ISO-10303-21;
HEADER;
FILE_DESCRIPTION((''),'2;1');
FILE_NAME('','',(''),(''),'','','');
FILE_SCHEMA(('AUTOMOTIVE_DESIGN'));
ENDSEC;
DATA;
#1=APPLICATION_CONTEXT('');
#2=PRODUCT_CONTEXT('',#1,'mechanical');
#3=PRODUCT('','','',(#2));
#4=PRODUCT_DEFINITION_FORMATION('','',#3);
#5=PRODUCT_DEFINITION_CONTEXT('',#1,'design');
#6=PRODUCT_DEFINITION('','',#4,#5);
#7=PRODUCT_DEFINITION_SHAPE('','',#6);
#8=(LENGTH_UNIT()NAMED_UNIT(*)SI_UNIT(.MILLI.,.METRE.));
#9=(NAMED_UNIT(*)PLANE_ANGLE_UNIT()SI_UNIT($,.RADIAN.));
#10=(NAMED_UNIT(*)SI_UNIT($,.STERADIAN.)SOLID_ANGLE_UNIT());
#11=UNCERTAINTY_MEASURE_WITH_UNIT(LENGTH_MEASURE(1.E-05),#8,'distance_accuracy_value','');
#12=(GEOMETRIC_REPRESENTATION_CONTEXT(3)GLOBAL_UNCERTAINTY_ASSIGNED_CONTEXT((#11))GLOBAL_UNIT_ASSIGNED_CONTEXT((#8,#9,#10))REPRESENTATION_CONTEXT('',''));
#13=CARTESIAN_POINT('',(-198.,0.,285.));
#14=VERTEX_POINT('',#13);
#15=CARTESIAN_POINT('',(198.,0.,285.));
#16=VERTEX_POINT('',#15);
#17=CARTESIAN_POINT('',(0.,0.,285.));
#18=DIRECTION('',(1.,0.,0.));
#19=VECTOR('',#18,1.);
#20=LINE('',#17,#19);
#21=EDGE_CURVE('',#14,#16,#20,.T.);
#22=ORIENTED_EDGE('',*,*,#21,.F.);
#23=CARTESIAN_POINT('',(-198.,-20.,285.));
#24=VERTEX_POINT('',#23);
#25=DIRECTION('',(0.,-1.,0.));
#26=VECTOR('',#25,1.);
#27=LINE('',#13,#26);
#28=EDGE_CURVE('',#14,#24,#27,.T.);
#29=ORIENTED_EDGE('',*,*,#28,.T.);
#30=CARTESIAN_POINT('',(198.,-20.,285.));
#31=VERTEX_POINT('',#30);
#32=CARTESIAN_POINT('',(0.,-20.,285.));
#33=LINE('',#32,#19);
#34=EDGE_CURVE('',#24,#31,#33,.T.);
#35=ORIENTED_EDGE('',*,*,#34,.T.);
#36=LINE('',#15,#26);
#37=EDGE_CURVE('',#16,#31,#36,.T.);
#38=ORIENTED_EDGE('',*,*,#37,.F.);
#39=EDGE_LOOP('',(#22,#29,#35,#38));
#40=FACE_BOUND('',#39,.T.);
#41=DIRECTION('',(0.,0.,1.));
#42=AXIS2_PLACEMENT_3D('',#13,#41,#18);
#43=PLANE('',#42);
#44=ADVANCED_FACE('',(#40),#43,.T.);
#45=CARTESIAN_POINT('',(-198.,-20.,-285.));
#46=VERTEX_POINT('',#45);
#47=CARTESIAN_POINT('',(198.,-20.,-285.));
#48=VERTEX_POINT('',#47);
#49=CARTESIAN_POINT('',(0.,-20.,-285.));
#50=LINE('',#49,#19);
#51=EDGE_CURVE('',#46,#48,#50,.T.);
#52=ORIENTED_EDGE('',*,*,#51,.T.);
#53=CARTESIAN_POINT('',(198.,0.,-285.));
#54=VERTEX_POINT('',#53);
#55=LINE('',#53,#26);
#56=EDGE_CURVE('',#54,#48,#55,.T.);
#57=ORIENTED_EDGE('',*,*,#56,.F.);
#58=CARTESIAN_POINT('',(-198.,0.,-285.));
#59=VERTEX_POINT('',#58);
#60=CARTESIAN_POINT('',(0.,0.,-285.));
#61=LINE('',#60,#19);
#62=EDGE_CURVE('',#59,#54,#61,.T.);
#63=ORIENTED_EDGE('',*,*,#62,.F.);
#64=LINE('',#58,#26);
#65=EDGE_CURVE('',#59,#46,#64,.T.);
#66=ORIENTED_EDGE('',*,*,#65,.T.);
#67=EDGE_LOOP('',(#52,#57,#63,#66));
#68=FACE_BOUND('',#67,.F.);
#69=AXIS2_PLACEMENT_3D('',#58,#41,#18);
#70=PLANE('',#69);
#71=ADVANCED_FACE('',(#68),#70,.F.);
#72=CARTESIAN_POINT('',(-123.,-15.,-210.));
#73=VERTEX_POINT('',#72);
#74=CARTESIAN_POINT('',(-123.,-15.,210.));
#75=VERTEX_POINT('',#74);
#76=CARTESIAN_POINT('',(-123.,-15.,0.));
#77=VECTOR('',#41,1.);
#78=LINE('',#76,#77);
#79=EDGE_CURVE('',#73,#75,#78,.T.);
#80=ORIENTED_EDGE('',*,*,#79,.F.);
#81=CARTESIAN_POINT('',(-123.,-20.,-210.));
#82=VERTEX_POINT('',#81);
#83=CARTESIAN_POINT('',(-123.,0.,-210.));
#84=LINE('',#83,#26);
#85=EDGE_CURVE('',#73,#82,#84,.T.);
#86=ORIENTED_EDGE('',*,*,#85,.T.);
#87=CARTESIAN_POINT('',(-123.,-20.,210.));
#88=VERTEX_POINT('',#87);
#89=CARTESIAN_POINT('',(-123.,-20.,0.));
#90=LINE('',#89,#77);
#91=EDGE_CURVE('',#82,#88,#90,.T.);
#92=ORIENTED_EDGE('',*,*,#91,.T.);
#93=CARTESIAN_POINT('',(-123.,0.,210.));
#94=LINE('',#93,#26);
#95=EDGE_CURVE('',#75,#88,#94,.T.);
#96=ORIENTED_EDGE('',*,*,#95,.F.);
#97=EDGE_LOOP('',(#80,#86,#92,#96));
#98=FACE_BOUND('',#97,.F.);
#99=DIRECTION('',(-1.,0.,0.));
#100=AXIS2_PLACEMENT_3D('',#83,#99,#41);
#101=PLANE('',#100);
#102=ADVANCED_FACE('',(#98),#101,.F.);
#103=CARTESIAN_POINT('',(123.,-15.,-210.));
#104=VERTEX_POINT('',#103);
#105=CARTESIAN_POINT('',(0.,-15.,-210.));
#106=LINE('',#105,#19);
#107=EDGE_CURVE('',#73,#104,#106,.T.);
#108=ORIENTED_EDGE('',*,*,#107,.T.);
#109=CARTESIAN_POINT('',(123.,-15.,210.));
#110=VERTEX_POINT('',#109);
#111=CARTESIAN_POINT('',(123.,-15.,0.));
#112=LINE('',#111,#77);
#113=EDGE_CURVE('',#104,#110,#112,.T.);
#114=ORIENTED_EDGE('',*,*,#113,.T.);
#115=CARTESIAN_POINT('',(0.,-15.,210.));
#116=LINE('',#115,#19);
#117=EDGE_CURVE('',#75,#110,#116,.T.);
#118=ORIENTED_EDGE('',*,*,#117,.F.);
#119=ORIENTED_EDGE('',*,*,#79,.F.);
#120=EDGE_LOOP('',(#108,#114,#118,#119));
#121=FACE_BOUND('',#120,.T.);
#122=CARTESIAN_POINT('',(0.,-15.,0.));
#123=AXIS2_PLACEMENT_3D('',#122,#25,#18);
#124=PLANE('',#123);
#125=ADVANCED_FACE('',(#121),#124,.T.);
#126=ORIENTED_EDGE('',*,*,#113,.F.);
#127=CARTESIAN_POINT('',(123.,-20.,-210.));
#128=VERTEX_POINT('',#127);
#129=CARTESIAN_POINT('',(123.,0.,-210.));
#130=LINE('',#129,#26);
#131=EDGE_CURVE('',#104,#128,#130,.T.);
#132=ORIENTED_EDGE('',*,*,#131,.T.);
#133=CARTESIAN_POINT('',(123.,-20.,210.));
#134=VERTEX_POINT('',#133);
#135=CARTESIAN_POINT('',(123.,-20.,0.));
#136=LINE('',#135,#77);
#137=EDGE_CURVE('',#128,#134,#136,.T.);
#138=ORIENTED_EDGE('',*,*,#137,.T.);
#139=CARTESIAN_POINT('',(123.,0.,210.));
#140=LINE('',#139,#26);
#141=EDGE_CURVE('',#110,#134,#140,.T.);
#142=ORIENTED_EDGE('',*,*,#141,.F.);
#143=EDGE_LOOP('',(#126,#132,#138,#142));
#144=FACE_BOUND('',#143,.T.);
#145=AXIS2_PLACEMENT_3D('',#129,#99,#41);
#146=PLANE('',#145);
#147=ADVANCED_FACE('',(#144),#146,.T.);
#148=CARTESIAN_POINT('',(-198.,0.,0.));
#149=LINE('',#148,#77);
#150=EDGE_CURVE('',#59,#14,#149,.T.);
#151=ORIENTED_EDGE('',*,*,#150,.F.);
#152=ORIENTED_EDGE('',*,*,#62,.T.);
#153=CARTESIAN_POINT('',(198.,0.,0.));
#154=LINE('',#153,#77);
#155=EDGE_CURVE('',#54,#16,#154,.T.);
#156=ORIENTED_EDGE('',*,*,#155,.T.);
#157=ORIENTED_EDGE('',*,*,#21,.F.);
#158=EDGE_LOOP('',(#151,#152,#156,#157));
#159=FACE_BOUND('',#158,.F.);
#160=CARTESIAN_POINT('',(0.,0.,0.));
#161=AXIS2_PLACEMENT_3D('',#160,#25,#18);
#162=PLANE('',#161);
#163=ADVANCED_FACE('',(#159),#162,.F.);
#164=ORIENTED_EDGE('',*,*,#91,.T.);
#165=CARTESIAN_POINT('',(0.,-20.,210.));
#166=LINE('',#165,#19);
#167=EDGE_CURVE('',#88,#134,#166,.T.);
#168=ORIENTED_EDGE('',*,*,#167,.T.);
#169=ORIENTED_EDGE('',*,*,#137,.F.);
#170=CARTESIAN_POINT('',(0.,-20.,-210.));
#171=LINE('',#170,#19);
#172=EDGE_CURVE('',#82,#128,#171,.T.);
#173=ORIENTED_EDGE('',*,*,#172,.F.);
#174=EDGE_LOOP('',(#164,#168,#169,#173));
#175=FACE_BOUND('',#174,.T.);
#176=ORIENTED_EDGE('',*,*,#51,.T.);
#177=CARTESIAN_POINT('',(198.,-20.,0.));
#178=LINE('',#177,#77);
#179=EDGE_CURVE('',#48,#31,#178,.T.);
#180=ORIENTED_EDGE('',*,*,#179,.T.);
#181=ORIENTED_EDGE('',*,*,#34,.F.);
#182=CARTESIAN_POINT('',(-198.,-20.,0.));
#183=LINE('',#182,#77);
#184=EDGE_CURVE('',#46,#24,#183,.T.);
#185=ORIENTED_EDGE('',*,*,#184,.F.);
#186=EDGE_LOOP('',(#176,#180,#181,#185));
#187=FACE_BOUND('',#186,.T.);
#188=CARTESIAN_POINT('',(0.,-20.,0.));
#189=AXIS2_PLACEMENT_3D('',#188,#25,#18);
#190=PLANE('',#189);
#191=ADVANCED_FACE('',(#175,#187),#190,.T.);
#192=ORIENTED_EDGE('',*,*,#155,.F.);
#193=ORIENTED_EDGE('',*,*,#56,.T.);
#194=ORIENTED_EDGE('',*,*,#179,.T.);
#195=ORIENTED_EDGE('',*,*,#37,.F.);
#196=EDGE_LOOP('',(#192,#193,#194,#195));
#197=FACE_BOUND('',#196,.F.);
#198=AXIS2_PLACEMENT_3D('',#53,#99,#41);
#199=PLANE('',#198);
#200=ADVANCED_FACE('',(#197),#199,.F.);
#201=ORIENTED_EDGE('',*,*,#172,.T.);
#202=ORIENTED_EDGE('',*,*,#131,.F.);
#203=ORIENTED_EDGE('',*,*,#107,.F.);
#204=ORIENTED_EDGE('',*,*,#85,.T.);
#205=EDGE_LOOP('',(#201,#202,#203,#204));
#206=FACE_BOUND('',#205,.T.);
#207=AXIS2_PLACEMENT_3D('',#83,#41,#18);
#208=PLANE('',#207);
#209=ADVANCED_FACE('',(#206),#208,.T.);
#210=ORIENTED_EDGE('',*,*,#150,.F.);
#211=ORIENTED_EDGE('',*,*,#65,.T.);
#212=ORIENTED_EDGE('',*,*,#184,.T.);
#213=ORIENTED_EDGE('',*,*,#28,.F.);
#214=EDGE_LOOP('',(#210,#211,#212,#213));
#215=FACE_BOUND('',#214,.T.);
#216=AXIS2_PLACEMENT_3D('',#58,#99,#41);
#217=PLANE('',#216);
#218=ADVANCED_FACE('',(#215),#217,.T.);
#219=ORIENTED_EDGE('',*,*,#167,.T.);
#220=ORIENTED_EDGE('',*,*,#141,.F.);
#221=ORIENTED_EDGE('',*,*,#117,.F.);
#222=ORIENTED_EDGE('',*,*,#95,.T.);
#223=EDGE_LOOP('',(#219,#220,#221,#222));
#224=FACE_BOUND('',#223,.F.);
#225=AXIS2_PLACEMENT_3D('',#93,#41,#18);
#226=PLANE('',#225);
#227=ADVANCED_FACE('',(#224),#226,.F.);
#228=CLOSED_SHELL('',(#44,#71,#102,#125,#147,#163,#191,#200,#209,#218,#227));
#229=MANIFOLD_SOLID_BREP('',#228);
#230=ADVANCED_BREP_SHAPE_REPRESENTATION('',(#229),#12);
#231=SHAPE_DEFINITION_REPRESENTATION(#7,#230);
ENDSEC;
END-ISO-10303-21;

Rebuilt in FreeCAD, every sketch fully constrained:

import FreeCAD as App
import Part
import Sketcher
from FreeCAD import Vector

doc = App.newDocument("Part")
body = doc.addObject("PartDesign::Body", "Body")

# Sketch on XZ plane
sketch1 = doc.addObject("Sketcher::SketchObject", "Sketch")
body.addObject(sketch1)
sketch1.AttachmentSupport = (doc.XZ_Plane, [""])
sketch1.MapMode = "FlatFace"
sketch1.addGeometry([
    Part.LineSegment(Vector(-123, 210, 0), Vector(-123, -210, 0)),
    Part.LineSegment(Vector(-123, -210, 0), Vector(123, -210, 0)),
    Part.LineSegment(Vector(123, -210, 0), Vector(123, 210, 0)),
    Part.LineSegment(Vector(123, 210, 0), Vector(-123, 210, 0)),
], False)
sketch1.addConstraint([
    Sketcher.Constraint("Coincident", 0, 2, 1, 1),
    Sketcher.Constraint("Coincident", 1, 2, 2, 1),
    Sketcher.Constraint("Coincident", 2, 2, 3, 1),
    Sketcher.Constraint("Coincident", 3, 2, 0, 1),
    Sketcher.Constraint("Vertical", 0),
    Sketcher.Constraint("Horizontal", 1),
    Sketcher.Constraint("Vertical", 2),
    Sketcher.Constraint("Horizontal", 3),
    Sketcher.Constraint("Symmetric", 0, 2, 2, 2, -1, 1),
    Sketcher.Constraint("DistanceX", 1, 1, 1, 2, 246.0),
    Sketcher.Constraint("DistanceY", 0, 2, 0, 1, 420.0),
])
pad1 = doc.addObject("PartDesign::Pad", "Pad")
body.addObject(pad1)
pad1.Profile = sketch1
pad1.Length = 15

# Sketch on XZ plane
sketch2 = doc.addObject("Sketcher::SketchObject", "Sketch001")
body.addObject(sketch2)
sketch2.AttachmentSupport = (doc.XZ_Plane, [""])
sketch2.MapMode = "FlatFace"
sketch2.addGeometry([
    Part.LineSegment(Vector(-198, 285, 0), Vector(-198, -285, 0)),  # 0
    Part.LineSegment(Vector(-198, -285, 0), Vector(198, -285, 0)),  # 1
    Part.LineSegment(Vector(198, -285, 0), Vector(198, 285, 0)),  # 2
    Part.LineSegment(Vector(198, 285, 0), Vector(-198, 285, 0)),  # 3
    Part.LineSegment(Vector(123, -210, 0), Vector(-123, -210, 0)),  # 4
    Part.LineSegment(Vector(-123, -210, 0), Vector(-123, 210, 0)),  # 5
    Part.LineSegment(Vector(-123, 210, 0), Vector(123, 210, 0)),  # 6
    Part.LineSegment(Vector(123, 210, 0), Vector(123, -210, 0)),  # 7
], False)
sketch2.addConstraint([
    Sketcher.Constraint("Coincident", 0, 2, 1, 1),
    Sketcher.Constraint("Coincident", 1, 2, 2, 1),
    Sketcher.Constraint("Coincident", 2, 2, 3, 1),
    Sketcher.Constraint("Coincident", 3, 2, 0, 1),
    Sketcher.Constraint("Coincident", 4, 2, 5, 1),
    Sketcher.Constraint("Coincident", 5, 2, 6, 1),
    Sketcher.Constraint("Coincident", 6, 2, 7, 1),
    Sketcher.Constraint("Coincident", 7, 2, 4, 1),
    Sketcher.Constraint("Vertical", 0),
    Sketcher.Constraint("Horizontal", 1),
    Sketcher.Constraint("Vertical", 2),
    Sketcher.Constraint("Horizontal", 3),
    Sketcher.Constraint("Horizontal", 4),
    Sketcher.Constraint("Vertical", 5),
    Sketcher.Constraint("Horizontal", 6),
    Sketcher.Constraint("Vertical", 7),
    Sketcher.Constraint("Symmetric", 0, 2, 2, 2, -1, 1),
    Sketcher.Constraint("Symmetric", 4, 2, 6, 2, -1, 1),
    Sketcher.Constraint("DistanceX", 1, 1, 1, 2, 396.0),
    Sketcher.Constraint("DistanceX", 4, 2, 4, 1, 246.0),
    Sketcher.Constraint("DistanceY", 0, 2, 0, 1, 570.0),
    Sketcher.Constraint("DistanceY", 5, 1, 5, 2, 420.0),
])
pad2 = doc.addObject("PartDesign::Pad", "Pad001")
body.addObject(pad2)
pad2.Profile = sketch2
pad2.Length = 20

doc.recompute()
